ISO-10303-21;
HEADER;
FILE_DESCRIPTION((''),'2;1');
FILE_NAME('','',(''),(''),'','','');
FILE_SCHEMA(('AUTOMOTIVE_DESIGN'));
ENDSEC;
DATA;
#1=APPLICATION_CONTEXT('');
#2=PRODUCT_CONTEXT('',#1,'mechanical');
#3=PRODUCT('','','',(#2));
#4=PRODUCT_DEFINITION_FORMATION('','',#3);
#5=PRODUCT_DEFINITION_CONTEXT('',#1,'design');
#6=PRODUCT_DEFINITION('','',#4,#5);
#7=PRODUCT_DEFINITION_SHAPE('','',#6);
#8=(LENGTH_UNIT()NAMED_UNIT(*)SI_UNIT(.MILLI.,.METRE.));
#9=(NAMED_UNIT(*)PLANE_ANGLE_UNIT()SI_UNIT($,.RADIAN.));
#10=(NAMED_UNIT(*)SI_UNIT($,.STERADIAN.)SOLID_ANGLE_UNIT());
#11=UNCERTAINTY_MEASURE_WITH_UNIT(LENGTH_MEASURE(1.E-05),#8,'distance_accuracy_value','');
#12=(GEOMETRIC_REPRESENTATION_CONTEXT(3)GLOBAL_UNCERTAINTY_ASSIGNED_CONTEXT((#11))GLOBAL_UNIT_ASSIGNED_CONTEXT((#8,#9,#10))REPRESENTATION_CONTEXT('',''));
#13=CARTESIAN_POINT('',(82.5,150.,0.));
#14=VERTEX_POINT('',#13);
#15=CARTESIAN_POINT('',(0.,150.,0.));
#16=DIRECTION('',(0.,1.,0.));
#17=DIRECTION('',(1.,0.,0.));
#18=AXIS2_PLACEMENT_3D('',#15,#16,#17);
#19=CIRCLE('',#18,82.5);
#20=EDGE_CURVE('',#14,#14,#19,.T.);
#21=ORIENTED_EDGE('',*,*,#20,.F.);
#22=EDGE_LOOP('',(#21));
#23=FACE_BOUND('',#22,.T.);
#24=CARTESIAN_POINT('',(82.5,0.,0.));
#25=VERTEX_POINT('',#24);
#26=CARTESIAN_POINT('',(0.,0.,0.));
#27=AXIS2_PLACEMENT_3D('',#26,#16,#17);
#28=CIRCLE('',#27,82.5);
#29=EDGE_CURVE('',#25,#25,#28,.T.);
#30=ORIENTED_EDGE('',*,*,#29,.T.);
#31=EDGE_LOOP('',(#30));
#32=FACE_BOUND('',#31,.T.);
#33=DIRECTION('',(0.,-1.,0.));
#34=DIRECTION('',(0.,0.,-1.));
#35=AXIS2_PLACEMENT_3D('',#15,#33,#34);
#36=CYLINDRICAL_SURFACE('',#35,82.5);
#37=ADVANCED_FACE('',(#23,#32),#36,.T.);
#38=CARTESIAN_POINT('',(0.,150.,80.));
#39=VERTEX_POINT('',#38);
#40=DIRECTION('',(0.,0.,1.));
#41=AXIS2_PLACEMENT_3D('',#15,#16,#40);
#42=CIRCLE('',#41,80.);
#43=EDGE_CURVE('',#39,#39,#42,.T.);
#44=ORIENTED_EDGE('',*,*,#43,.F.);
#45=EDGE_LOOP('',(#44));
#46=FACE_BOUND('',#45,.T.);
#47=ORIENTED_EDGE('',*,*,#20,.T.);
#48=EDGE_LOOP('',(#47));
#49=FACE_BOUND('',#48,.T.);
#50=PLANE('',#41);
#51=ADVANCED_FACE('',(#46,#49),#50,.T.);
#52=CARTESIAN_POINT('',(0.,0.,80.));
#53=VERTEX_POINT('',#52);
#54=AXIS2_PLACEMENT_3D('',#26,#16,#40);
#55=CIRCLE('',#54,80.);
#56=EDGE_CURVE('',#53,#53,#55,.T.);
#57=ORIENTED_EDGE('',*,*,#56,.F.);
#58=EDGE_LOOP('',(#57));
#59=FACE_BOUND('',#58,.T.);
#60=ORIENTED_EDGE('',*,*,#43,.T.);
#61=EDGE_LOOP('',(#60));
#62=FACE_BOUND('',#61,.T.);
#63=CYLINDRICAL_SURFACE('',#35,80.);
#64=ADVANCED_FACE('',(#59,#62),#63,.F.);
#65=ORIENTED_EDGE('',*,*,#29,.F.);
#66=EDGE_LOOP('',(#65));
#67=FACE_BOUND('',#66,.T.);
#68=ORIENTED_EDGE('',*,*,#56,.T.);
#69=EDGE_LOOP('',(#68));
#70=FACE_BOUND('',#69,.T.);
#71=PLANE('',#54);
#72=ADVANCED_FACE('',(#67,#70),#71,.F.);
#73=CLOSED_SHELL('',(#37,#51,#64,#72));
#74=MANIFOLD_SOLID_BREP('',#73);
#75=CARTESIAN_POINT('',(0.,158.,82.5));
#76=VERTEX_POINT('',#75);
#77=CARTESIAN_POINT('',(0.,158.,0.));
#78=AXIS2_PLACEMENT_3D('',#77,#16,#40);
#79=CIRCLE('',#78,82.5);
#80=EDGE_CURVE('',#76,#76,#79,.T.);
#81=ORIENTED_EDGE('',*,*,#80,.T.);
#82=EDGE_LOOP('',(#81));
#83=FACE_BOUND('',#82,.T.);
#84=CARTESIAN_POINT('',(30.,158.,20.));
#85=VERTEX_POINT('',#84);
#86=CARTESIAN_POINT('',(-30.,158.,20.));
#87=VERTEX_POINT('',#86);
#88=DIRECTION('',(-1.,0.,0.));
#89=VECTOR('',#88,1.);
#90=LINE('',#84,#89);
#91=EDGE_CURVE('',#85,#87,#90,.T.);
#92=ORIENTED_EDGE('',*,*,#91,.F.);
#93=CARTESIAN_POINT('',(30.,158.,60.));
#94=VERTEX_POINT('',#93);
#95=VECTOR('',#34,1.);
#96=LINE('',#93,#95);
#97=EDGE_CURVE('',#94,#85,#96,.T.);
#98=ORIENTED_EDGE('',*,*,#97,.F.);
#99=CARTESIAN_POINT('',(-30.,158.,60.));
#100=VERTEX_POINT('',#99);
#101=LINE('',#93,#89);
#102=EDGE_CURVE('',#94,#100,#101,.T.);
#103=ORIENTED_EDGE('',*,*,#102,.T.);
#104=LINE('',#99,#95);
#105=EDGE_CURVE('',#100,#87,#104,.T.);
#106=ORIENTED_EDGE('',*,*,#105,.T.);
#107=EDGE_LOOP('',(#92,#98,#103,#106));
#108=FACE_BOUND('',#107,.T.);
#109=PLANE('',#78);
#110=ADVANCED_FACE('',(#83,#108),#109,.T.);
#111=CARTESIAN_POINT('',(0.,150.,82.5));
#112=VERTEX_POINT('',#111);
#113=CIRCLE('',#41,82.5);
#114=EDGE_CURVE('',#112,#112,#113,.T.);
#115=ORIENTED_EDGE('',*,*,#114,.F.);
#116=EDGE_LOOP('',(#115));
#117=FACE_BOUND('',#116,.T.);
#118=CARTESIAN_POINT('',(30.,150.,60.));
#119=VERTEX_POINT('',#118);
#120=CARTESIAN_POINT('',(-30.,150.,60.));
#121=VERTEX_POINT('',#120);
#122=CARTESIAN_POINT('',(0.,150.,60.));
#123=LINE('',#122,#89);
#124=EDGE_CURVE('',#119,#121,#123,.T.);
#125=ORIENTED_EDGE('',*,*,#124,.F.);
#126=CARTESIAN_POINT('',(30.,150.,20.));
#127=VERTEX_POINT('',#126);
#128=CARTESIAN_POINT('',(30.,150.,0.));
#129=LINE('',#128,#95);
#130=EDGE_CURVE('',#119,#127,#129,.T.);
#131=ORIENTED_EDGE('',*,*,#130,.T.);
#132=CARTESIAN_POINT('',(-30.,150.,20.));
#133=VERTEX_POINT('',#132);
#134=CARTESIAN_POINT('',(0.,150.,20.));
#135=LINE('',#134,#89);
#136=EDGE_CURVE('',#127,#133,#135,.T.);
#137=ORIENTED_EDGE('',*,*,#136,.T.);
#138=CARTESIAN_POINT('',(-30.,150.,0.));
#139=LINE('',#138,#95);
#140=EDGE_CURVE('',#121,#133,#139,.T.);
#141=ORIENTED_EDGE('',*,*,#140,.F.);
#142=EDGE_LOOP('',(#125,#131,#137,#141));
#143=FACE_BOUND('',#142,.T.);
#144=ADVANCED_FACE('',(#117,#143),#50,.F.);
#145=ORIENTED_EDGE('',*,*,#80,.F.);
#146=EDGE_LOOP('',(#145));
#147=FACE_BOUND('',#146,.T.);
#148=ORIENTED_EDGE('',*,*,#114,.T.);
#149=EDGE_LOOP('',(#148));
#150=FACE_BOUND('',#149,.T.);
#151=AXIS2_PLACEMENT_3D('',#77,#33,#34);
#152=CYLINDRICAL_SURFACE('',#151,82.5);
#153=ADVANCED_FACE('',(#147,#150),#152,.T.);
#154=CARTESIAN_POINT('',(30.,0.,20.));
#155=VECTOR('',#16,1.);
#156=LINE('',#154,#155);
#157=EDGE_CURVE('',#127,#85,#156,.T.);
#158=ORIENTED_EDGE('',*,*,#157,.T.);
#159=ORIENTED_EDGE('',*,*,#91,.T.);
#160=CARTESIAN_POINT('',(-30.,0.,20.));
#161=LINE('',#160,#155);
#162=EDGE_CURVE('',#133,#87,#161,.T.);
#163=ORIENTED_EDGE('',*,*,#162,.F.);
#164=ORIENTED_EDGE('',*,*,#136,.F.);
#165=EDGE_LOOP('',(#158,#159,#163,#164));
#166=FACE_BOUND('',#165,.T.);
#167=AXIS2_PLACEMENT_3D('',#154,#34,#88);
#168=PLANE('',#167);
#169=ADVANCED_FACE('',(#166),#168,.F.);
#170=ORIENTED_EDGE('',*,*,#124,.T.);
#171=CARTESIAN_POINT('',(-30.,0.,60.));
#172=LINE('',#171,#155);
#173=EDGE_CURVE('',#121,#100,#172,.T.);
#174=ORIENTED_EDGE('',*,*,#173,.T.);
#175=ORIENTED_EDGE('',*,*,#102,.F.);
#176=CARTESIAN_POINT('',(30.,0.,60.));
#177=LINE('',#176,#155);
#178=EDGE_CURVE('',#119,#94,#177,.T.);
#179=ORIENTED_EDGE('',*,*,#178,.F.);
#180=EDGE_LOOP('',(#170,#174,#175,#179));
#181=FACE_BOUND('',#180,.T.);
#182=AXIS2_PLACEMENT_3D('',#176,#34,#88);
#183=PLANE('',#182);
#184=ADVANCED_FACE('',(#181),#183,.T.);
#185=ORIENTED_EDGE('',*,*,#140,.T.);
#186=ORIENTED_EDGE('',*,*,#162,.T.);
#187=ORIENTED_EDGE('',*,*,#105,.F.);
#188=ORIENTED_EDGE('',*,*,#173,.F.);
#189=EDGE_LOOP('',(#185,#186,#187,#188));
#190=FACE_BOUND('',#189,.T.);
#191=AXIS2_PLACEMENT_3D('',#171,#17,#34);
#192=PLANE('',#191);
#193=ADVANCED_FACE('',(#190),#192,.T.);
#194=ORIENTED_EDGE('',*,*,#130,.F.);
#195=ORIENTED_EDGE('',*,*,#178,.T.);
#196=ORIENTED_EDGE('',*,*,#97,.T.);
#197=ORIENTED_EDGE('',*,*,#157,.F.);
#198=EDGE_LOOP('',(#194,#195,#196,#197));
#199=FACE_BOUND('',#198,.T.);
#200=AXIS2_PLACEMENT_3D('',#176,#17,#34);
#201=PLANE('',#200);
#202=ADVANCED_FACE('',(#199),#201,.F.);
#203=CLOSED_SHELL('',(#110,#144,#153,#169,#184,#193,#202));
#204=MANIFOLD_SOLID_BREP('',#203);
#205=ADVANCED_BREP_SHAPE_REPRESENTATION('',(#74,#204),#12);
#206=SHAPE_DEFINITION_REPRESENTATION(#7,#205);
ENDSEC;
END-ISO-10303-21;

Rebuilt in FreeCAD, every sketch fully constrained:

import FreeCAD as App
import Part
import Sketcher
Q = App.Units.Quantity

doc = App.newDocument("Part")
params = doc.addObject("Spreadsheet::Sheet", "Params")
for row, (alias, value) in enumerate([
    ("sketch1_diameter", "165 mm"),
    ("sketch1_diameter2", "160 mm"),
    ("pad1_length", "150 mm"),
    ("sketch2_diameter", "165 mm"),
    ("pad2_length", "8 mm"),
    ("sketch3_width", "60 mm"),
    ("sketch3_height", "40 mm"),
], start=1):
    params.set(f"A{row}", alias)
    params.set(f"B{row}", "=" + value)
    params.setAlias(f"B{row}", alias)

body = doc.addObject("PartDesign::Body", "Body")

# Sketch on XZ plane
sketch1 = body.newObject("Sketcher::SketchObject", "Sketch")
sketch1.AttachmentSupport = (doc.getObject("XZ_Plane"), [""])
sketch1.MapMode = "FlatFace"
sketch1.addGeometry(Part.Circle(App.Vector(0, 0, 0), App.Vector(0, 0, 1), 82), False)
sketch1.addGeometry(Part.Circle(App.Vector(0, 0, 0), App.Vector(0, 0, 1), 80), False)
sketch1.addConstraint(Sketcher.Constraint("Coincident", 0, 3, -1, 1))
sketch1.addConstraint(Sketcher.Constraint("Coincident", 1, 3, -1, 1))
sketch1.addConstraint(Sketcher.Constraint("Diameter", 0, Q("165 mm")))
sketch1.addConstraint(Sketcher.Constraint("Diameter", 1, Q("160 mm")))
sketch1.setExpression("Constraints[2]", "Params.sketch1_diameter")
sketch1.setExpression("Constraints[3]", "Params.sketch1_diameter2")
pad1 = body.newObject("PartDesign::Pad", "Pad")
pad1.Profile = sketch1
pad1.setExpression("Length", "Params.pad1_length")
pad1.Reversed = True
body2 = doc.addObject("PartDesign::Body", "Body001")

# Sketch on XZ plane
sketch2 = body2.newObject("Sketcher::SketchObject", "Sketch001")
sketch2.AttachmentSupport = (doc.getObject("XZ_Plane001"), [""])
sketch2.MapMode = "FlatFace"
sketch2.AttachmentOffset = App.Placement(App.Vector(0, 0, -150), App.Rotation())
sketch2.addGeometry(Part.Circle(App.Vector(0, 0, 0), App.Vector(0, 0, 1), 82), False)
sketch2.addConstraint(Sketcher.Constraint("Coincident", 0, 3, -1, 1))
sketch2.addConstraint(Sketcher.Constraint("Diameter", 0, Q("165 mm")))
sketch2.setExpression("Constraints[1]", "Params.sketch2_diameter")
pad2 = body2.newObject("PartDesign::Pad", "Pad001")
pad2.Profile = sketch2
pad2.setExpression("Length", "Params.pad2_length")
pad2.Reversed = True

# Sketch on XZ plane
sketch3 = body2.newObject("Sketcher::SketchObject", "Sketch002")
sketch3.AttachmentSupport = (doc.getObject("XZ_Plane001"), [""])
sketch3.MapMode = "FlatFace"
sketch3.AttachmentOffset = App.Placement(App.Vector(0, 0, -158), App.Rotation())
sketch3.addGeometry(Part.LineSegment(App.Vector(-30, 20, 0), App.Vector(-30, 60, 0)), False)
sketch3.addGeometry(Part.LineSegment(App.Vector(-30, 60, 0), App.Vector(30, 60, 0)), False)
sketch3.addGeometry(Part.LineSegment(App.Vector(30, 60, 0), App.Vector(30, 20, 0)), False)
sketch3.addGeometry(Part.LineSegment(App.Vector(30, 20, 0), App.Vector(-30, 20, 0)), False)
sketch3.addConstraint(Sketcher.Constraint("Coincident", 0, 2, 1, 1))
sketch3.addConstraint(Sketcher.Constraint("Coincident", 1, 2, 2, 1))
sketch3.addConstraint(Sketcher.Constraint("Coincident", 2, 2, 3, 1))
sketch3.addConstraint(Sketcher.Constraint("Coincident", 3, 2, 0, 1))
sketch3.addConstraint(Sketcher.Constraint("Vertical", 0))
sketch3.addConstraint(Sketcher.Constraint("Horizontal", 1))
sketch3.addConstraint(Sketcher.Constraint("Vertical", 2))
sketch3.addConstraint(Sketcher.Constraint("Horizontal", 3))
sketch3.addConstraint(Sketcher.Constraint("DistanceX", 1, 1, 1, 2, Q("60 mm")))
sketch3.addConstraint(Sketcher.Constraint("DistanceY", 0, 1, 0, 2, Q("40 mm")))
sketch3.addConstraint(Sketcher.Constraint("DistanceX", 0, 2, -1, 1, Q("30 mm")))
sketch3.addConstraint(Sketcher.Constraint("DistanceY", -1, 1, 0, 2, Q("60 mm")))
sketch3.setExpression("Constraints[8]", "Params.sketch3_width")
sketch3.setExpression("Constraints[9]", "Params.sketch3_height")
pocket1 = body2.newObject("PartDesign::Pocket", "Pocket")
pocket1.Profile = sketch3
pocket1.Type = "ThroughAll"
pocket1.Reversed = True

doc.recompute()
